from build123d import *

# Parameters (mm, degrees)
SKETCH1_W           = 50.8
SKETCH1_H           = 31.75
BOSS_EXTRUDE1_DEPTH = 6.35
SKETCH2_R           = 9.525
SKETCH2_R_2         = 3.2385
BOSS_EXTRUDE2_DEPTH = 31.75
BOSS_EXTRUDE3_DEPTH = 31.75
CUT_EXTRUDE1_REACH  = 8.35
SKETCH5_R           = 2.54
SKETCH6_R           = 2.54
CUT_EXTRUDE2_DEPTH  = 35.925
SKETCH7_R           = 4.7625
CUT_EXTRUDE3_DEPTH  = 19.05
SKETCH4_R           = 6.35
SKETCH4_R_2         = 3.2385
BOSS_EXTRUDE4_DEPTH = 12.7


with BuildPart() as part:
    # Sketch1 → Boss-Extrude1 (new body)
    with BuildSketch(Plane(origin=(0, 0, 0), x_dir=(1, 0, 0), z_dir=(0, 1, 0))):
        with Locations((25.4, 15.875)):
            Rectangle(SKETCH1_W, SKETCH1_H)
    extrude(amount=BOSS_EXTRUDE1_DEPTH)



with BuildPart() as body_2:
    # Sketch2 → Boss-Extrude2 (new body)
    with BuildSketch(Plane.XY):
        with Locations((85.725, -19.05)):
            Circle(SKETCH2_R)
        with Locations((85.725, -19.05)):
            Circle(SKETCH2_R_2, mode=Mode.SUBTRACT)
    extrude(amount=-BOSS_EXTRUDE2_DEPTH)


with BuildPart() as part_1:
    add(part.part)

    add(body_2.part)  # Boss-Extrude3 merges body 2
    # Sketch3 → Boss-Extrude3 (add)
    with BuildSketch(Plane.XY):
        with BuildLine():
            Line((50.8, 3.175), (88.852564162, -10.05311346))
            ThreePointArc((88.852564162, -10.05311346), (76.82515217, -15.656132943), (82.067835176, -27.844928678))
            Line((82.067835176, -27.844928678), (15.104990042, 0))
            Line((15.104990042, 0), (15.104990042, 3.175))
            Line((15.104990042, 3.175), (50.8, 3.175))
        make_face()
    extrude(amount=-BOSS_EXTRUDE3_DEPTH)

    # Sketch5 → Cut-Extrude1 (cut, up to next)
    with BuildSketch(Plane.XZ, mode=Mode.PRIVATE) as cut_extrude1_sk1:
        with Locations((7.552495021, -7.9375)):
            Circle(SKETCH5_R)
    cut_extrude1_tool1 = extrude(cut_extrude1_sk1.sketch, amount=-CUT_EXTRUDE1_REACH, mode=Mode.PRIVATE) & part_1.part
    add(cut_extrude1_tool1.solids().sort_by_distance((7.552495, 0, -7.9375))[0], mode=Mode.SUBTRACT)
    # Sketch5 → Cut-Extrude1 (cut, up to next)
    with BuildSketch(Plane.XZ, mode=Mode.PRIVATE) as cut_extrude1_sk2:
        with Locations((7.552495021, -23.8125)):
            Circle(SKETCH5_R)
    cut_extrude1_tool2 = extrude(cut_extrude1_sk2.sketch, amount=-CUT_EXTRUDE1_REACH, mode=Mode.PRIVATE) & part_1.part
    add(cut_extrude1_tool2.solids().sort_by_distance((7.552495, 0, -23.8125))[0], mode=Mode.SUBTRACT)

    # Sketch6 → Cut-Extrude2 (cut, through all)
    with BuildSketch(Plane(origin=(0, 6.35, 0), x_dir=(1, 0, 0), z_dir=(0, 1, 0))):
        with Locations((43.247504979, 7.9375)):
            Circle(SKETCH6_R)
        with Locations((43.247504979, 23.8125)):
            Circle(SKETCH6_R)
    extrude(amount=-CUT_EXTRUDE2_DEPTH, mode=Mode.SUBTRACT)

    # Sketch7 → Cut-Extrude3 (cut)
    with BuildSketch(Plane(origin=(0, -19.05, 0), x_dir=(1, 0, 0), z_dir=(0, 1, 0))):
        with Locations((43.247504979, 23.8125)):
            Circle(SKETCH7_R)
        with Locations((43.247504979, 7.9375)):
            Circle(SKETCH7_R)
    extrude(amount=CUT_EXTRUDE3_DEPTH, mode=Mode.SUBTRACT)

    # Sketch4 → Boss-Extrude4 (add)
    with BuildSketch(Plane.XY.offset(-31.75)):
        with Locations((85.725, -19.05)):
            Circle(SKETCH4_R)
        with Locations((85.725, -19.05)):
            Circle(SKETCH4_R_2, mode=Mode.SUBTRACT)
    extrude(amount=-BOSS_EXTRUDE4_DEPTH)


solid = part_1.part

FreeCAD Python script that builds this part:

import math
import FreeCAD as App
import Part
import Sketcher
Q = App.Units.Quantity


def add_polygon(sketch, points):
    """Adds a closed chain of lines whose ends are joined by coincident constraints."""
    first, n = sketch.GeometryCount, len(points)
    for a, b in zip(points, points[1:] + points[:1]):
        sketch.addGeometry(Part.LineSegment(App.Vector(*a, 0), App.Vector(*b, 0)), False)
    for i in range(n):
        sketch.addConstraint(Sketcher.Constraint("Coincident", first + i, 2, first + (i + 1) % n, 1))

doc = App.newDocument("Part")
body = doc.addObject("PartDesign::Body", "Body")

# Sketch on XZ plane
sketch1 = body.newObject("Sketcher::SketchObject", "Sketch")
sketch1.AttachmentSupport = (doc.getObject("XZ_Plane"), [""])
sketch1.MapMode = "FlatFace"
add_polygon(sketch1, [(0, -32), (0, 0), (51, 0), (51, -32)])  # lines 0-3
sketch1.addConstraint([
    Sketcher.Constraint("Vertical", 0),
    Sketcher.Constraint("Horizontal", 1),
    Sketcher.Constraint("Vertical", 2),
    Sketcher.Constraint("Horizontal", 3),
    Sketcher.Constraint("Coincident", 0, 2, -1, 1),
    Sketcher.Constraint("DistanceX", 1, 1, 1, 2, Q("2 in")),
    Sketcher.Constraint("DistanceY", 0, 1, 0, 2, Q("1.25 in")),
])
pad1 = body.newObject("PartDesign::Pad", "Pad")
pad1.Profile = sketch1
pad1.Length = Q("0.25 in")
pad1.Reversed = True
body2 = doc.addObject("PartDesign::Body", "Body001")

# Sketch on XY plane
sketch2 = body2.newObject("Sketcher::SketchObject", "Sketch001")
sketch2.AttachmentSupport = (doc.getObject("XY_Plane001"), [""])
sketch2.MapMode = "FlatFace"
sketch2.addGeometry([
    Part.Circle(App.Vector(85.7, -19.1, 0), App.Vector(0, 0, 1), 9.5),
    Part.Circle(App.Vector(85.7, -19.1, 0), App.Vector(0, 0, 1), 3.2),
], False)
sketch2.addConstraint([
    Sketcher.Constraint("Coincident", 1, 3, 0, 3),
    Sketcher.Constraint("Diameter", 0, Q("0.75 in")),
    Sketcher.Constraint("Diameter", 1, Q("0.255 in")),
    Sketcher.Constraint("DistanceY", 0, 3, -1, 1, Q("0.75 in")),
    Sketcher.Constraint("DistanceX", -1, 1, 0, 3, Q("3.375 in")),
])
pad2 = body2.newObject("PartDesign::Pad", "Pad001")
pad2.Profile = sketch2
pad2.Length = Q("1.25 in")
pad2.Reversed = True
body.AllowCompound = True
doc.recompute()

boolean = body.newObject("PartDesign::Boolean", "Boolean")
boolean.Type = "Fuse"
boolean.addObjects([body2])

# Sketch on XY plane
sketch3 = body.newObject("Sketcher::SketchObject", "Sketch002")
sketch3.AttachmentSupport = (doc.getObject("XY_Plane"), [""])
sketch3.MapMode = "FlatFace"
sketch3.addGeometry([
    Part.LineSegment(App.Vector(88.9, -10.1, 0), App.Vector(50.8, 3.2, 0)),  # 0
    Part.LineSegment(App.Vector(50.8, 3.2, 0), App.Vector(15.1, 3.2, 0)),  # 1
    Part.LineSegment(App.Vector(15.1, 3.2, 0), App.Vector(15.1, 0, 0)),  # 2
    Part.LineSegment(App.Vector(15.1, 0, 0), App.Vector(82.1, -27.8, 0)),  # 3
    Part.ArcOfCircle(Part.Circle(App.Vector(85.7, -19.1, 0), App.Vector(0, 0, 1), 9.5), math.radians(71), math.radians(247)),  # 4
], False)
sketch3.addConstraint([
    Sketcher.Constraint("Coincident", 0, 2, 1, 1),
    Sketcher.Constraint("Coincident", 1, 2, 2, 1),
    Sketcher.Constraint("Coincident", 2, 2, 3, 1),
    Sketcher.Constraint("Tangent", 3, 2, 4, 2),
    Sketcher.Constraint("Tangent", 4, 1, 0, 1),
    Sketcher.Constraint("Horizontal", 1),
    Sketcher.Constraint("Vertical", 2),
    Sketcher.Constraint("PointOnObject", 2, 2, -1),
    Sketcher.Constraint("DistanceX", -1, 1, 0, 2, Q("2 in")),
    Sketcher.Constraint("Radius", 4, Q("0.375 in")),
    Sketcher.Constraint("DistanceY", 2, 2, 2, 1, Q("0.125 in")),
    Sketcher.Constraint("DistanceY", 4, 3, -1, 1, Q("0.75 in")),
    Sketcher.Constraint("DistanceX", -1, 1, 4, 3, Q("3.375 in")),
    Sketcher.Constraint("DistanceX", 1, 2, 1, 1, Q("35.69501 mm")),
])
pad3 = body.newObject("PartDesign::Pad", "Pad002")
pad3.Profile = sketch3
pad3.Length = Q("1.25 in")
pad3.Reversed = True

# Sketch on XZ plane
sketch4 = body.newObject("Sketcher::SketchObject", "Sketch003")
sketch4.AttachmentSupport = (doc.getObject("XZ_Plane"), [""])
sketch4.MapMode = "FlatFace"
sketch4.addGeometry(Part.Circle(App.Vector(7.6, -7.9, 0), App.Vector(0, 0, 1), 2.5), False)
sketch4.addConstraint([
    Sketcher.Constraint("Diameter", 0, Q("0.2 in")),
    Sketcher.Constraint("DistanceY", 0, 3, -1, 1, Q("0.3125 in")),
    Sketcher.Constraint("DistanceX", -1, 1, 0, 3, Q("7.552495 mm")),
])
pocket1 = body.newObject("PartDesign::Pocket", "Pocket")
pocket1.Profile = sketch4
pocket1.Type = "UpToFirst"

# Sketch on XZ plane
sketch5 = body.newObject("Sketcher::SketchObject", "Sketch004")
sketch5.AttachmentSupport = (doc.getObject("XZ_Plane"), [""])
sketch5.MapMode = "FlatFace"
sketch5.addGeometry(Part.Circle(App.Vector(7.6, -23.8, 0), App.Vector(0, 0, 1), 2.5), False)
sketch5.addConstraint([
    Sketcher.Constraint("Diameter", 0, Q("0.2 in")),
    Sketcher.Constraint("DistanceY", 0, 3, -1, 1, Q("0.9375 in")),
    Sketcher.Constraint("DistanceX", -1, 1, 0, 3, Q("7.552495 mm")),
])
pocket2 = body.newObject("PartDesign::Pocket", "Pocket001")
pocket2.Profile = sketch5
pocket2.Type = "UpToFirst"

# Sketch on XZ plane
sketch6 = body.newObject("Sketcher::SketchObject", "Sketch005")
sketch6.AttachmentSupport = (doc.getObject("XZ_Plane"), [""])
sketch6.MapMode = "FlatFace"
sketch6.AttachmentOffset = App.Placement(App.Vector(0, 0, -0.25 * 25.4), App.Rotation())
sketch6.addGeometry([
    Part.Circle(App.Vector(43.2, -7.9, 0), App.Vector(0, 0, 1), 2.5),
    Part.Circle(App.Vector(43.2, -23.8, 0), App.Vector(0, 0, 1), 2.5),
], False)
sketch6.addConstraint([
    Sketcher.Constraint("Equal", 0, 1),
    Sketcher.Constraint("Vertical", 0, 3, 1, 3),
    Sketcher.Constraint("Diameter", 0, Q("0.2 in")),
    Sketcher.Constraint("DistanceY", 0, 3, -1, 1, Q("0.3125 in")),
    Sketcher.Constraint("DistanceY", 1, 3, -1, 1, Q("0.9375 in")),
    Sketcher.Constraint("DistanceX", -1, 1, 0, 3, Q("43.247505 mm")),
])
pocket3 = body.newObject("PartDesign::Pocket", "Pocket002")
pocket3.Profile = sketch6
pocket3.Type = "ThroughAll"
pocket3.Reversed = True

# Sketch on XZ plane
sketch7 = body.newObject("Sketcher::SketchObject", "Sketch006")
sketch7.AttachmentSupport = (doc.getObject("XZ_Plane"), [""])
sketch7.MapMode = "FlatFace"
sketch7.AttachmentOffset = App.Placement(App.Vector(0, 0, 0.75 * 25.4), App.Rotation())
sketch7.addGeometry([
    Part.Circle(App.Vector(43.2, -23.8, 0), App.Vector(0, 0, 1), 4.8),
    Part.Circle(App.Vector(43.2, -7.9, 0), App.Vector(0, 0, 1), 4.8),
], False)
sketch7.addConstraint([
    Sketcher.Constraint("Equal", 0, 1),
    Sketcher.Constraint("Vertical", 0, 3, 1, 3),
    Sketcher.Constraint("Diameter", 0, Q("0.375 in")),
    Sketcher.Constraint("DistanceY", 0, 3, -1, 1, Q("0.9375 in")),
    Sketcher.Constraint("DistanceY", 1, 3, -1, 1, Q("0.3125 in")),
    Sketcher.Constraint("DistanceX", -1, 1, 0, 3, Q("43.247505 mm")),
])
pocket4 = body.newObject("PartDesign::Pocket", "Pocket003")
pocket4.Profile = sketch7
pocket4.Length = Q("0.75 in")

# Sketch on XY plane
sketch8 = body.newObject("Sketcher::SketchObject", "Sketch007")
sketch8.AttachmentSupport = (doc.getObject("XY_Plane"), [""])
sketch8.MapMode = "FlatFace"
sketch8.AttachmentOffset = App.Placement(App.Vector(0, 0, -1.25 * 25.4), App.Rotation())
sketch8.addGeometry([
    Part.Circle(App.Vector(85.7, -19.1, 0), App.Vector(0, 0, 1), 6.3),
    Part.Circle(App.Vector(85.7, -19.1, 0), App.Vector(0, 0, 1), 3.2),
], False)
sketch8.addConstraint([
    Sketcher.Constraint("Coincident", 1, 3, 0, 3),
    Sketcher.Constraint("Diameter", 0, Q("0.5 in")),
    Sketcher.Constraint("Diameter", 1, Q("0.255 in")),
    Sketcher.Constraint("DistanceY", 0, 3, -1, 1, Q("0.75 in")),
    Sketcher.Constraint("DistanceX", -1, 1, 0, 3, Q("3.375 in")),
])
pad4 = body.newObject("PartDesign::Pad", "Pad003")
pad4.Profile = sketch8
pad4.Length = Q("0.5 in")
pad4.Reversed = True

doc.recompute()
